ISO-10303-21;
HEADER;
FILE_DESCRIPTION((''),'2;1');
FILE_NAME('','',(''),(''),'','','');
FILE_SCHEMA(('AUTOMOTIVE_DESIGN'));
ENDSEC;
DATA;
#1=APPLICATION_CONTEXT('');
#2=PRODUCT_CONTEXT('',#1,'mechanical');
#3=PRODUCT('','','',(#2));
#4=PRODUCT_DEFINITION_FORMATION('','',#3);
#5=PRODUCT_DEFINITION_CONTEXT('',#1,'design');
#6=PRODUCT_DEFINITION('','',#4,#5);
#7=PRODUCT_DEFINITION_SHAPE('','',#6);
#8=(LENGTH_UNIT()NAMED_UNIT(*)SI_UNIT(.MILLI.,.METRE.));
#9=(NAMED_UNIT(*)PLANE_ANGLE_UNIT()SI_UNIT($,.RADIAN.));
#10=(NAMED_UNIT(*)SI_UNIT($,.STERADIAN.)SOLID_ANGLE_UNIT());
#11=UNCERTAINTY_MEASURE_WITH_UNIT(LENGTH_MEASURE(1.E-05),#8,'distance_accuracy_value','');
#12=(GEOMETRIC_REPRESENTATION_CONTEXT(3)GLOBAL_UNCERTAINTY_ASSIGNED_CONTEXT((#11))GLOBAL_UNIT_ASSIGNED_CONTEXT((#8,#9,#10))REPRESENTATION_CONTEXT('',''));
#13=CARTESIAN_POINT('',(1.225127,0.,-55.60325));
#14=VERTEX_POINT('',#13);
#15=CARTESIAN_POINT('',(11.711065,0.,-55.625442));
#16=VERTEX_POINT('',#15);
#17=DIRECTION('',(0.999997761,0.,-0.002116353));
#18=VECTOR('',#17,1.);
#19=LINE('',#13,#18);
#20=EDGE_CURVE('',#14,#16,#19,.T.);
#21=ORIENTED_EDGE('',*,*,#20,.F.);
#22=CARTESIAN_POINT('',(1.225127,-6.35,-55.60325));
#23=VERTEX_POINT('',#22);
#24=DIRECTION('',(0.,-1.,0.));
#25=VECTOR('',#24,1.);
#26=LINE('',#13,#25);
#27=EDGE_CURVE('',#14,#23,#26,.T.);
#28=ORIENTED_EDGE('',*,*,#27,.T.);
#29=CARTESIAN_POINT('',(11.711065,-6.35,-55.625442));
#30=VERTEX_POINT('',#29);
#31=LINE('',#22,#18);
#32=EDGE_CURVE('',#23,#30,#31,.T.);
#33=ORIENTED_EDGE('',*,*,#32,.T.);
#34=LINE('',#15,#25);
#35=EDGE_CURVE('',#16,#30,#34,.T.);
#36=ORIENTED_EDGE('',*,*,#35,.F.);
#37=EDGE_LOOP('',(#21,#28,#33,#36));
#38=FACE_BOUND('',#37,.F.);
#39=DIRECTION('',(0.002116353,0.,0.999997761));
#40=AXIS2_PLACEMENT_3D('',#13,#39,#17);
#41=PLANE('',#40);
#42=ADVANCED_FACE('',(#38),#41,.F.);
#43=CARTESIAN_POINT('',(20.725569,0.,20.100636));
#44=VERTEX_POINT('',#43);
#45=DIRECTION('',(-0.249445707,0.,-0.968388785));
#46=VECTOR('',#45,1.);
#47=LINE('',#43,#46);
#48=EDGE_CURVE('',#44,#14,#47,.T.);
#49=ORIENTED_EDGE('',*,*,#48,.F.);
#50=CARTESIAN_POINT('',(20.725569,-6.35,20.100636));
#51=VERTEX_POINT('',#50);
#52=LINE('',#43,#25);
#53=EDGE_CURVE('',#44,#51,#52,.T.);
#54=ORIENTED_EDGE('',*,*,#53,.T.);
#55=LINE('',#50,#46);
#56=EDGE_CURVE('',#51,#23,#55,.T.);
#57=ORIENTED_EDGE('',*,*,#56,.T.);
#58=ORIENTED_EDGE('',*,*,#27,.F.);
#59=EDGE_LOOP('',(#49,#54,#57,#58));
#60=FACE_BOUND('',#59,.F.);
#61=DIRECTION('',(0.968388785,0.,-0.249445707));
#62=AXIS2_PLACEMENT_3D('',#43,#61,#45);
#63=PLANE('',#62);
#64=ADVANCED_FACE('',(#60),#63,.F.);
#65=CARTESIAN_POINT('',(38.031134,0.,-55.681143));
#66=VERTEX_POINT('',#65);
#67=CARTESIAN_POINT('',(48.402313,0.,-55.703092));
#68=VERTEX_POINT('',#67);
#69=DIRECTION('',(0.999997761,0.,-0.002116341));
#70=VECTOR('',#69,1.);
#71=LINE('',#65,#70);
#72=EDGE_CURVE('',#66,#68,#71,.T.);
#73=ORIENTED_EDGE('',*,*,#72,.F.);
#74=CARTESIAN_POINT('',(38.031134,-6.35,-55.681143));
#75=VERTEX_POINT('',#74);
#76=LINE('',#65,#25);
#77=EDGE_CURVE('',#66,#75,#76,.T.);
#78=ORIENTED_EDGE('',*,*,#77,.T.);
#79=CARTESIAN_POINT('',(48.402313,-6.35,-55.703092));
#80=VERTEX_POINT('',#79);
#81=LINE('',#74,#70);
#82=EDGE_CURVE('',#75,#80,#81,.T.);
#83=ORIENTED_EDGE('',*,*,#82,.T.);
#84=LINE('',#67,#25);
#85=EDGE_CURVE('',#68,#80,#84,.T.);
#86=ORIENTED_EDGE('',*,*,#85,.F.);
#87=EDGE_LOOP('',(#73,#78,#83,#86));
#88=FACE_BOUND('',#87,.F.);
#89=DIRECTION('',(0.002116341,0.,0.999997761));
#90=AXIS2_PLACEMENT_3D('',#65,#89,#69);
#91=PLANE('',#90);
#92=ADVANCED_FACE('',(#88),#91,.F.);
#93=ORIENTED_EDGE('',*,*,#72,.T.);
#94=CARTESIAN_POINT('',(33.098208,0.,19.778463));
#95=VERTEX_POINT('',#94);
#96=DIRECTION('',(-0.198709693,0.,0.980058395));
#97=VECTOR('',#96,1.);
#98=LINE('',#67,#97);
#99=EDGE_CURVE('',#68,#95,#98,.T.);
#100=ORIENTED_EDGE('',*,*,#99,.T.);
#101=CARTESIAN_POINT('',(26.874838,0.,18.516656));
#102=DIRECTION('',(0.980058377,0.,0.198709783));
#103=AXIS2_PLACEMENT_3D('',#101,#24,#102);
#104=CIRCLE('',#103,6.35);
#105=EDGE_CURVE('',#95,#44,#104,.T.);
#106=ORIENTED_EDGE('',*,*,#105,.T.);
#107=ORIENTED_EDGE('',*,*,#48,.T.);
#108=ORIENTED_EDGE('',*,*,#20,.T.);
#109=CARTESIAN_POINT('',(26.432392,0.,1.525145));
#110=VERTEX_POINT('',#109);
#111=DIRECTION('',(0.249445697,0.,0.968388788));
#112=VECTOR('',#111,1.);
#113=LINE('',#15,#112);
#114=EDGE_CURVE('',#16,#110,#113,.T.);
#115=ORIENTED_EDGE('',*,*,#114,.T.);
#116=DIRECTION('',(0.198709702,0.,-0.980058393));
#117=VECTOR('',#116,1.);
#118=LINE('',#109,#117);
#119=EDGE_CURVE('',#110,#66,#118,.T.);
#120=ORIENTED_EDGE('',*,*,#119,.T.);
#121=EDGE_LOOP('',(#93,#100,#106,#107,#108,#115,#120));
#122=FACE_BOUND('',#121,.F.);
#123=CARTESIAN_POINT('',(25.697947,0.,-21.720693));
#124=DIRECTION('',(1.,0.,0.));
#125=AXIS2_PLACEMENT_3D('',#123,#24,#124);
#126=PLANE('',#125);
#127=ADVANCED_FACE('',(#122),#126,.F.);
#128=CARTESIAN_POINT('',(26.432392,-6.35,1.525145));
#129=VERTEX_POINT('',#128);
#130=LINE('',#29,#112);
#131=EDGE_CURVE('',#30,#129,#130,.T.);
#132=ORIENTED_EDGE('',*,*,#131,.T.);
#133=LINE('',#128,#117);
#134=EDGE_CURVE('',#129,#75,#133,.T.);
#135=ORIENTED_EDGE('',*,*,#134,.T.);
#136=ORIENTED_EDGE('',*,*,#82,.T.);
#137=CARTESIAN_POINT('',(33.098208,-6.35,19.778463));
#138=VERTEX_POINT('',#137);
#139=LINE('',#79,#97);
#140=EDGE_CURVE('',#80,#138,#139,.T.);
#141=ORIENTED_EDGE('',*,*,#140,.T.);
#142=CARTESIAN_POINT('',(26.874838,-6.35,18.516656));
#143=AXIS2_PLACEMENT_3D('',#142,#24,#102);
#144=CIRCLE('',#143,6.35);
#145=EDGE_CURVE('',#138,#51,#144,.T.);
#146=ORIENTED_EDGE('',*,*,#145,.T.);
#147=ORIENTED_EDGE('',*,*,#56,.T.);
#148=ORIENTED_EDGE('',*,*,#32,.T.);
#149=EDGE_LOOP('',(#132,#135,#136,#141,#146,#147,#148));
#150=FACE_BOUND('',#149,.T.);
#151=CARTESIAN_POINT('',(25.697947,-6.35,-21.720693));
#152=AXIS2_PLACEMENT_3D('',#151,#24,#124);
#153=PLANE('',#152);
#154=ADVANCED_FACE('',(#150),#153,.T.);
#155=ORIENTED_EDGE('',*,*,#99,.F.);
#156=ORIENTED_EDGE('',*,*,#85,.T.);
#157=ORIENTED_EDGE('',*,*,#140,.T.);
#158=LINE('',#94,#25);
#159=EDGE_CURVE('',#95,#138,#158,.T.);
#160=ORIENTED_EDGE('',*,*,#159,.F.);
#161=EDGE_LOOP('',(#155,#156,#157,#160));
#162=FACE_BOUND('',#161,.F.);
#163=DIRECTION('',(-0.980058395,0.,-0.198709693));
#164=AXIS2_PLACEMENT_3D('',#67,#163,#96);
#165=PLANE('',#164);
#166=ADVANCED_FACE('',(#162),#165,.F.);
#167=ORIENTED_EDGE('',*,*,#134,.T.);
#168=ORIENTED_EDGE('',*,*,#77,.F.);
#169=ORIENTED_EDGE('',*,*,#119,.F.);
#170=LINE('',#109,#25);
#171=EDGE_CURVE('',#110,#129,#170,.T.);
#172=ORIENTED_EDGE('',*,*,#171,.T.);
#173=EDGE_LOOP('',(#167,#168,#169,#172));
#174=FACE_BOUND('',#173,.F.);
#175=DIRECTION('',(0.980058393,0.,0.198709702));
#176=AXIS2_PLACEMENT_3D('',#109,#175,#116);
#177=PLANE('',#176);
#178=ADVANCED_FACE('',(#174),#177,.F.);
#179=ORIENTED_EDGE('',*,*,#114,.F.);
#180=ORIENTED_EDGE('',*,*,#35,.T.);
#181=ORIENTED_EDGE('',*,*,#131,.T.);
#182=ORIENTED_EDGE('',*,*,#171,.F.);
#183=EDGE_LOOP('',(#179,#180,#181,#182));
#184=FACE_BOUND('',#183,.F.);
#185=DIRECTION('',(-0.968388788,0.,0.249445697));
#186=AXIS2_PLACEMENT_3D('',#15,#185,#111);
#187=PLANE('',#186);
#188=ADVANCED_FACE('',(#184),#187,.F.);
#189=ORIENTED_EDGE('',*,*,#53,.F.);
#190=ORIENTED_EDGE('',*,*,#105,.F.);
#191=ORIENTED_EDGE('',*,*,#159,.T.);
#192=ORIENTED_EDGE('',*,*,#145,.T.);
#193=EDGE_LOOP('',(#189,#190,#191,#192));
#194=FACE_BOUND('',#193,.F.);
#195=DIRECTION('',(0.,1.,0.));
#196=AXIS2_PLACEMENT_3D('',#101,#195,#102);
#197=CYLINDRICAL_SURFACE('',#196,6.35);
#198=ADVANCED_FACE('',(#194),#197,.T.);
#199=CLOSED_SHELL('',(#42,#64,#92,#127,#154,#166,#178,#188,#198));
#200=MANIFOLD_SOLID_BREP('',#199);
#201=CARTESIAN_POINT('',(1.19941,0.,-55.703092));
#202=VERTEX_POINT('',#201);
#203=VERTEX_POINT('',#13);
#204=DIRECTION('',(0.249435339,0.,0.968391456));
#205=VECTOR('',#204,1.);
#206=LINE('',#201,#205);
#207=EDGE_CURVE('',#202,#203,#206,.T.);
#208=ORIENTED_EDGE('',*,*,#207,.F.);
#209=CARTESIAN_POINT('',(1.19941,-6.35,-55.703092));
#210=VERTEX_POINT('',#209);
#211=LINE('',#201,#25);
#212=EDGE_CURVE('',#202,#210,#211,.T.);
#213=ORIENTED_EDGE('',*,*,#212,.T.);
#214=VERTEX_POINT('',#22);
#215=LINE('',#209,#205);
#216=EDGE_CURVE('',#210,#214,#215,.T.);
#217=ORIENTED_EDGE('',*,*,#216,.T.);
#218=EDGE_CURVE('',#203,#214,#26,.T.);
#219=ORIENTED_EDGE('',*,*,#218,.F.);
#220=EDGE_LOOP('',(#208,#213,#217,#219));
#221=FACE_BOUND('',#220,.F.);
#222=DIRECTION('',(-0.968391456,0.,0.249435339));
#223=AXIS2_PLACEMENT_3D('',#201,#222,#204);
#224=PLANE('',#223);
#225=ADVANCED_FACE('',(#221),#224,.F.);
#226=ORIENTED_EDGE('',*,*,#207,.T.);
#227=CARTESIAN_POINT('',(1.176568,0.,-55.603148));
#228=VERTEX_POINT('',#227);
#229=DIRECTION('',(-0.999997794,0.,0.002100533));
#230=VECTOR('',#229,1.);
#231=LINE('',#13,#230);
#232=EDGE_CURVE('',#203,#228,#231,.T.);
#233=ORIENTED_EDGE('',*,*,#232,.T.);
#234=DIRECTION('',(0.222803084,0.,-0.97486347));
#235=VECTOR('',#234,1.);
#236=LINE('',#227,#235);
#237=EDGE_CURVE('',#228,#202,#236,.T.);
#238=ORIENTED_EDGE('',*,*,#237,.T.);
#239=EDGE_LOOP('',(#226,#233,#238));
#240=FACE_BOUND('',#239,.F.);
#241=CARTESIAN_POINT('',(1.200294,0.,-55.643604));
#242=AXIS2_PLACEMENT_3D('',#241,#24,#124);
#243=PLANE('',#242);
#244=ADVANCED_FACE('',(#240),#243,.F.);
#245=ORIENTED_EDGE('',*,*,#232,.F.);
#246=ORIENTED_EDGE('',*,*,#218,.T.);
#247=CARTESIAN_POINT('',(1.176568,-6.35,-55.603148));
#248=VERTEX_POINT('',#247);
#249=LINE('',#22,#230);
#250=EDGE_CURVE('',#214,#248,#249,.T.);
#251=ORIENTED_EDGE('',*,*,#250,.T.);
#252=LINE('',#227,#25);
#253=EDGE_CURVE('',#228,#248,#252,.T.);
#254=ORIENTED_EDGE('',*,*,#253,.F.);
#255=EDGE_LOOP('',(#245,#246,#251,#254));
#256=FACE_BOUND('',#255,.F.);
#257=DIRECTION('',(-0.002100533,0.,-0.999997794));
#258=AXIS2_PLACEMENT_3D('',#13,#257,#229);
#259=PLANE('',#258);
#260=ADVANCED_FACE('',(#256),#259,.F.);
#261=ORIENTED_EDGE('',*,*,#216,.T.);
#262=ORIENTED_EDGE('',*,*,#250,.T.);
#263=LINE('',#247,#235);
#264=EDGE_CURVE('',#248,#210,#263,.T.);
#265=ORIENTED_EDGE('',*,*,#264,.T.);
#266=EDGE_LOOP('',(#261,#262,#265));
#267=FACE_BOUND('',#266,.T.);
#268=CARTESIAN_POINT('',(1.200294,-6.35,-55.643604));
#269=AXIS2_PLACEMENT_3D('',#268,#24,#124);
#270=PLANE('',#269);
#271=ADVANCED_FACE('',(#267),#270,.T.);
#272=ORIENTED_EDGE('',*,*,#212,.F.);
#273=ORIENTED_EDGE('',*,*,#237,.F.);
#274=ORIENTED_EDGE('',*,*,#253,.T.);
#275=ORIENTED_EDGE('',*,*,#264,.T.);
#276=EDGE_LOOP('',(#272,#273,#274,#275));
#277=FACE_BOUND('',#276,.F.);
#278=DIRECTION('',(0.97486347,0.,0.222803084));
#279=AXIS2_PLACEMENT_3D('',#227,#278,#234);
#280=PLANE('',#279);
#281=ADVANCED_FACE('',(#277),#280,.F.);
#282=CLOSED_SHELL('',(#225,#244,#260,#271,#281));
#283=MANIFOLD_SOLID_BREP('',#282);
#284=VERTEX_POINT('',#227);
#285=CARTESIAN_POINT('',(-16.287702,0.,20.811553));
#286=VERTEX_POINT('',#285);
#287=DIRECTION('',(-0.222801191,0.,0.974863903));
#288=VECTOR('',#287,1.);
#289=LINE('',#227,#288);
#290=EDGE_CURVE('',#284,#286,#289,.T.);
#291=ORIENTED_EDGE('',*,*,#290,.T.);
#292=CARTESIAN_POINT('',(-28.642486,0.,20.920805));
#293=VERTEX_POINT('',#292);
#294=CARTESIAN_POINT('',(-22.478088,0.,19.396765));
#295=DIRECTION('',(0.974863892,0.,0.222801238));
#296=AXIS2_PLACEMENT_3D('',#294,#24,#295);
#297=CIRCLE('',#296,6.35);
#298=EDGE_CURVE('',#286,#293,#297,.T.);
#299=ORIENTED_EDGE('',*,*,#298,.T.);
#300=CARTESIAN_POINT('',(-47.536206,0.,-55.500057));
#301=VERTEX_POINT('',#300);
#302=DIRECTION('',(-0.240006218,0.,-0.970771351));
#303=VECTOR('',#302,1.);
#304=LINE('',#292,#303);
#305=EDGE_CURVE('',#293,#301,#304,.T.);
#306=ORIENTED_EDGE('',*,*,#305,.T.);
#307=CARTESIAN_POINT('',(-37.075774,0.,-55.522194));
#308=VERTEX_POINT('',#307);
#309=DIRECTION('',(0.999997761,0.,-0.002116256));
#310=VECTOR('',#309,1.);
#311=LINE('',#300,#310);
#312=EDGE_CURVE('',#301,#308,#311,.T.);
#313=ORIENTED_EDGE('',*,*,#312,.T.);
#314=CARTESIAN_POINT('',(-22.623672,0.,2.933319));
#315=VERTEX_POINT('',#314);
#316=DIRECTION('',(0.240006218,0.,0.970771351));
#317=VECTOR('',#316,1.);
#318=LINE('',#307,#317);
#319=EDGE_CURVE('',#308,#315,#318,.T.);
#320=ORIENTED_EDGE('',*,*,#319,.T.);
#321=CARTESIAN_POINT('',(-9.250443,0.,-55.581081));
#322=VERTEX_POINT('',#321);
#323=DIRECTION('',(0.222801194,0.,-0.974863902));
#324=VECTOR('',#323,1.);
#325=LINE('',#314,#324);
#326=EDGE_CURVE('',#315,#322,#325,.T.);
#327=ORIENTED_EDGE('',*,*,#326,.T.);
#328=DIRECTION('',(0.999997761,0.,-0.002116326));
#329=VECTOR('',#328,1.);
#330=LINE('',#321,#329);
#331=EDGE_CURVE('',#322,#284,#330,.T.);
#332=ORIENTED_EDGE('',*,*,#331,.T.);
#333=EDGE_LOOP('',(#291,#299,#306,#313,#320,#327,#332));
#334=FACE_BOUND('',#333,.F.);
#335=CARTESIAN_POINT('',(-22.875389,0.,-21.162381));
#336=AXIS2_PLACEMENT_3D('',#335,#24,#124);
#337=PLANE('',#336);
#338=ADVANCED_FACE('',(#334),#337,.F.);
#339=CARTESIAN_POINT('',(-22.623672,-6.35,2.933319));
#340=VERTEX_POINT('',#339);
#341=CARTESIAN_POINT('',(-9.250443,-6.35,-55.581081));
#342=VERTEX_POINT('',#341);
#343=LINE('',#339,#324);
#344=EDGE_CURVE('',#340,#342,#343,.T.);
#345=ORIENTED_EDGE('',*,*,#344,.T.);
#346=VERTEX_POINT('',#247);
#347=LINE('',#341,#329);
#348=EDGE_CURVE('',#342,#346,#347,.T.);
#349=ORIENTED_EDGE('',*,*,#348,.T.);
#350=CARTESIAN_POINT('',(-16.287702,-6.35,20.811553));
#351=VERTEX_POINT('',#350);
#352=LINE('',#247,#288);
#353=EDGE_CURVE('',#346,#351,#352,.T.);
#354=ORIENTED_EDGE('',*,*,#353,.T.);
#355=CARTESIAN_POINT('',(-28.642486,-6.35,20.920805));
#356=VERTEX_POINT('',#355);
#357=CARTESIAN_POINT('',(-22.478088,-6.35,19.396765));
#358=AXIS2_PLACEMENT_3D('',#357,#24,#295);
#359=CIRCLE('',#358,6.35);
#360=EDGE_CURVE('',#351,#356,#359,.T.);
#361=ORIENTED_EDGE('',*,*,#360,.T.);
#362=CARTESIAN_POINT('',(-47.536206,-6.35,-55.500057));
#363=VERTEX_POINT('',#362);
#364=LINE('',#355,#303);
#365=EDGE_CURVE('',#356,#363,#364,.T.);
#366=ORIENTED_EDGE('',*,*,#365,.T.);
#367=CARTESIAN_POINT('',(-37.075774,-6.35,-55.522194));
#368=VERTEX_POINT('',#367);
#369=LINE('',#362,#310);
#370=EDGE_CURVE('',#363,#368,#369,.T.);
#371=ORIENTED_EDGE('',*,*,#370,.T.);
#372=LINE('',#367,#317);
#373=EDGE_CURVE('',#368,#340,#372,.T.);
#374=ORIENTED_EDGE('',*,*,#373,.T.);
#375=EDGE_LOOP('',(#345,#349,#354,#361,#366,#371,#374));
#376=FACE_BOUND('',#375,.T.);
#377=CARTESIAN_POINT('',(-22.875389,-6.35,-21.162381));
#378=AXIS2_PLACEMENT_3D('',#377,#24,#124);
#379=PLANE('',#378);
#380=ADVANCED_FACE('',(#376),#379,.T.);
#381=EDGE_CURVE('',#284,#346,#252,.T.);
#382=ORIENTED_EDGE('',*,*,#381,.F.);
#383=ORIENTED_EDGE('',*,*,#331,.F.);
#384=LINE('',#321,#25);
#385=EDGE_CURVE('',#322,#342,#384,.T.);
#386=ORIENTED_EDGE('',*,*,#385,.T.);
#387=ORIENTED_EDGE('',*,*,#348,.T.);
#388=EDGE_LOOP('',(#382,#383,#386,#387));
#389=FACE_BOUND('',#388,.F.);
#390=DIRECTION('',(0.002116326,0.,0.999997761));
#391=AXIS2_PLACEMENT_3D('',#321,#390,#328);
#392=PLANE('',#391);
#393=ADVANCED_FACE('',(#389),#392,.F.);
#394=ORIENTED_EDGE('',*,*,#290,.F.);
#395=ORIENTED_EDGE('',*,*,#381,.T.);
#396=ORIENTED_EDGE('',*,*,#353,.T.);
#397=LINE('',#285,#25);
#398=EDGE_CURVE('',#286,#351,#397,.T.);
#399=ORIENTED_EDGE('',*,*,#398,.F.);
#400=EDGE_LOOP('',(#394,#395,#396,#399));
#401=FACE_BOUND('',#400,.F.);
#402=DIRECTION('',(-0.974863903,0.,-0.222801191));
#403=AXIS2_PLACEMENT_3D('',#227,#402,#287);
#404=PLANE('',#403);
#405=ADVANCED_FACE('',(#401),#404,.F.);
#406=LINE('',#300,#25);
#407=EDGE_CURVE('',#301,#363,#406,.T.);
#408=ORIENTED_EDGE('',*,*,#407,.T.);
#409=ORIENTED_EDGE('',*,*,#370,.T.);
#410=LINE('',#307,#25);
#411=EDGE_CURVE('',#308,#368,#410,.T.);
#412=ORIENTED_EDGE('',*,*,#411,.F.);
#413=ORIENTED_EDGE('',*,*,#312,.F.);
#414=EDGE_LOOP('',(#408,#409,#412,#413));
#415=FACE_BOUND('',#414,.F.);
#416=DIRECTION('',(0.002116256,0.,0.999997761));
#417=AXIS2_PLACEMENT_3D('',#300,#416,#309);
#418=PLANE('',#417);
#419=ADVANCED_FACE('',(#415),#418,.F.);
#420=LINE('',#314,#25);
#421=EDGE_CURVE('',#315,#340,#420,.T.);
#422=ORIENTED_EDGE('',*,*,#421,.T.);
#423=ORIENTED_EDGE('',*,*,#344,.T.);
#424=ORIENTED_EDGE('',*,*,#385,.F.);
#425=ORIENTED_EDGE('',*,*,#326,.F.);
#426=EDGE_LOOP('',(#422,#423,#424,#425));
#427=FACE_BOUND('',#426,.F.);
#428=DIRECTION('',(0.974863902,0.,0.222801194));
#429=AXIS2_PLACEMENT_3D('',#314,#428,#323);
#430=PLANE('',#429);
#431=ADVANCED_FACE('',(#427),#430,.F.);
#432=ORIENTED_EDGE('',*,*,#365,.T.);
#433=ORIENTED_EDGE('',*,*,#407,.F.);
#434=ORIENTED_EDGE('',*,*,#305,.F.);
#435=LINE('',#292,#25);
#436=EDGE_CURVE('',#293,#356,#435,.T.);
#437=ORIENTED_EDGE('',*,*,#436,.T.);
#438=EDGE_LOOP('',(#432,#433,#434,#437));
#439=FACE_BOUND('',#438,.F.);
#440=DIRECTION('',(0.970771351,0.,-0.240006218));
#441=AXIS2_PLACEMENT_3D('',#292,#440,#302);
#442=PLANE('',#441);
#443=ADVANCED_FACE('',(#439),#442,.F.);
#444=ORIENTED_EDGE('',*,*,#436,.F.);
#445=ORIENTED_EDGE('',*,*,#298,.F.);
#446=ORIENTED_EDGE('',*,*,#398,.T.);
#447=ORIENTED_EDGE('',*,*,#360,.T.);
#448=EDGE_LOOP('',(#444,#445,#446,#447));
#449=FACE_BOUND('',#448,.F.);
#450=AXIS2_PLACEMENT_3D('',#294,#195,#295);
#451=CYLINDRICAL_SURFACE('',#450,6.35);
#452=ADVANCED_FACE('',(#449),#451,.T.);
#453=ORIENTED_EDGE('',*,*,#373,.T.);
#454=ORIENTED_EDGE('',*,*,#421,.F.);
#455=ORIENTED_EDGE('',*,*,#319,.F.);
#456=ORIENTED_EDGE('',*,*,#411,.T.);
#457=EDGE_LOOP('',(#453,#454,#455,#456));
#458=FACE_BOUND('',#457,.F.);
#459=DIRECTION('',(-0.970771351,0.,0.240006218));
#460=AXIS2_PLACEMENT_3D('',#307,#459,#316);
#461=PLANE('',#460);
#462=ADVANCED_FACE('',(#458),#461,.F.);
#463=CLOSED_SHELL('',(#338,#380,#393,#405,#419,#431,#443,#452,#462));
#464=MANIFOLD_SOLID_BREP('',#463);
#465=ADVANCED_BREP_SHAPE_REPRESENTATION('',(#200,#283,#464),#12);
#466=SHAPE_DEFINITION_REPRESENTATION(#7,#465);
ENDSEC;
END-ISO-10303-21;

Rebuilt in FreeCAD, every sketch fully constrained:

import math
import FreeCAD as App
import Part
import Sketcher
from FreeCAD import Vector
Q = App.Units.Quantity


def add_polygon(sketch, points):
    """Adds a closed chain of lines whose ends are joined by coincident constraints."""
    first, n = sketch.GeometryCount, len(points)
    for a, b in zip(points, points[1:] + points[:1]):
        sketch.addGeometry(Part.LineSegment(App.Vector(*a, 0), App.Vector(*b, 0)), False)
    for i in range(n):
        sketch.addConstraint(Sketcher.Constraint("Coincident", first + i, 2, first + (i + 1) % n, 1))

doc = App.newDocument("Part")
body = doc.addObject("PartDesign::Body", "Body")
body.AllowCompound = True

# Sketch on XZ plane
sketch1 = doc.addObject("Sketcher::SketchObject", "Sketch")
body.addObject(sketch1)
sketch1.AttachmentSupport = (doc.XZ_Plane, [""])
sketch1.MapMode = "FlatFace"
sketch1.addGeometry(Part.LineSegment(Vector(20.725569, 20.100636, 0), Vector(1.225127, -55.60325, 0)), False)  # 0
sketch1.addGeometry(Part.LineSegment(Vector(1.225127, -55.60325, 0), Vector(11.711065, -55.625442, 0)), False)  # 1
sketch1.addGeometry(Part.LineSegment(Vector(11.711065, -55.625442, 0), Vector(26.432392, 1.525145, 0)), False)  # 2
sketch1.addGeometry(Part.LineSegment(Vector(26.432392, 1.525145, 0), Vector(38.031134, -55.681143, 0)), False)  # 3
sketch1.addGeometry(Part.LineSegment(Vector(38.031134, -55.681143, 0), Vector(48.402313, -55.703092, 0)), False)  # 4
sketch1.addGeometry(Part.LineSegment(Vector(48.402313, -55.703092, 0), Vector(33.098208, 19.778463, 0)), False)  # 5
sketch1.addGeometry(Part.ArcOfCircle(Part.Circle(Vector(26.874838, 18.516656, 0), Vector(0, 0, 1), 6.35), math.radians(11.461521), math.radians(165.555287)), False)  # 6
add_polygon(sketch1, [(1.225127, -55.60325), (1.176568, -55.603148), (1.19941, -55.703092)])  # lines 7-9
sketch1.addGeometry(Part.LineSegment(Vector(-28.642486, 20.920805, 0), Vector(-47.536206, -55.500057, 0)), False)  # 10
sketch1.addGeometry(Part.LineSegment(Vector(-47.536206, -55.500057, 0), Vector(-37.075774, -55.522194, 0)), False)  # 11
sketch1.addGeometry(Part.LineSegment(Vector(-37.075774, -55.522194, 0), Vector(-22.623672, 2.933319, 0)), False)  # 12
sketch1.addGeometry(Part.LineSegment(Vector(-22.623672, 2.933319, 0), Vector(-9.250443, -55.581081, 0)), False)  # 13
sketch1.addGeometry(Part.LineSegment(Vector(-9.250443, -55.581081, 0), Vector(1.176568, -55.603148, 0)), False)  # 14
sketch1.addGeometry(Part.LineSegment(Vector(1.176568, -55.603148, 0), Vector(-16.287702, 20.811553, 0)), False)  # 15
sketch1.addGeometry(Part.ArcOfCircle(Part.Circle(Vector(-22.478088, 19.396765, 0), Vector(0, 0, 1), 6.35), math.radians(12.873617), math.radians(166.113089)), False)  # 16
sketch1.addConstraint([
    Sketcher.Constraint("Coincident", 0, 2, 1, 1),
    Sketcher.Constraint("Coincident", 1, 2, 2, 1),
    Sketcher.Constraint("Coincident", 2, 2, 3, 1),
    Sketcher.Constraint("Coincident", 3, 2, 4, 1),
    Sketcher.Constraint("Coincident", 4, 2, 5, 1),
    Sketcher.Constraint("Tangent", 5, 2, 6, 1),
    Sketcher.Constraint("Tangent", 6, 2, 0, 1),
    Sketcher.Constraint("Coincident", 10, 2, 11, 1),
    Sketcher.Constraint("Coincident", 11, 2, 12, 1),
    Sketcher.Constraint("Coincident", 12, 2, 13, 1),
    Sketcher.Constraint("Coincident", 13, 2, 14, 1),
    Sketcher.Constraint("Coincident", 14, 2, 15, 1),
    Sketcher.Constraint("Tangent", 15, 2, 16, 1),
    Sketcher.Constraint("Tangent", 16, 2, 10, 1),
    Sketcher.Constraint("Coincident", 9, 2, 0, 2),
    Sketcher.Constraint("Coincident", 14, 2, 7, 2),
    Sketcher.Constraint("Equal", 6, 16),
    Sketcher.Constraint("Parallel", 0, 2),
    Sketcher.Constraint("Parallel", 1, 4),
    Sketcher.Constraint("Parallel", 3, 5),
    Sketcher.Constraint("Parallel", 4, 11),
    Sketcher.Constraint("Parallel", 10, 12),
    Sketcher.Constraint("Parallel", 8, 13),
    Sketcher.Constraint("Parallel", 11, 14),
    Sketcher.Constraint("Parallel", 13, 15),
    Sketcher.Constraint("Horizontal", 4, 2, 8, 2),
    Sketcher.Constraint("Radius", 6, Q("0.25 in")),
    Sketcher.Constraint("Distance", 9, Q("0.103101 mm")),
    Sketcher.Constraint("DistanceX", 15, 2, -1, 1, Q("16.287702 mm")),
    Sketcher.Constraint("DistanceY", 3, 2, 1, 2, Q("0.055701 mm")),
    Sketcher.Constraint("DistanceY", 3, 2, 6, 3, Q("74.197799 mm")),
    Sketcher.Constraint("DistanceX", 11, 2, 0, 2, Q("38.300901 mm")),
    Sketcher.Constraint("DistanceX", 16, 2, 16, 3, Q("6.164398 mm")),
    Sketcher.Constraint("Distance", 1, Q("10.485961 mm")),
    Sketcher.Constraint("Distance", 2, Q("59.016159 mm")),
    Sketcher.Constraint("Distance", 7, Q("0.048559 mm")),
    Sketcher.Constraint("Distance", 8, Q("0.102521 mm")),
    Sketcher.Constraint("Distance", 12, Q("60.215532 mm")),
    Sketcher.Constraint("DistanceY", 0, 2, -1, 1, Q("55.60325 mm")),
    Sketcher.Constraint("DistanceX", -1, 1, 2, 2, Q("26.432392 mm")),
    Sketcher.Constraint("DistanceX", -1, 1, 6, 2, Q("20.725569 mm")),
    Sketcher.Constraint("DistanceY", -1, 1, 12, 2, Q("2.933319 mm")),
    Sketcher.Constraint("DistanceY", 6, 3, 16, 3, Q("0.880109 mm")),
    Sketcher.Constraint("DistanceX", 1, 2, 3, 2, Q("26.320069 mm")),
])
pad1 = doc.addObject("PartDesign::Pad", "Pad")
body.addObject(pad1)
pad1.Profile = sketch1
pad1.Length = Q("0.25 in")

doc.recompute()
